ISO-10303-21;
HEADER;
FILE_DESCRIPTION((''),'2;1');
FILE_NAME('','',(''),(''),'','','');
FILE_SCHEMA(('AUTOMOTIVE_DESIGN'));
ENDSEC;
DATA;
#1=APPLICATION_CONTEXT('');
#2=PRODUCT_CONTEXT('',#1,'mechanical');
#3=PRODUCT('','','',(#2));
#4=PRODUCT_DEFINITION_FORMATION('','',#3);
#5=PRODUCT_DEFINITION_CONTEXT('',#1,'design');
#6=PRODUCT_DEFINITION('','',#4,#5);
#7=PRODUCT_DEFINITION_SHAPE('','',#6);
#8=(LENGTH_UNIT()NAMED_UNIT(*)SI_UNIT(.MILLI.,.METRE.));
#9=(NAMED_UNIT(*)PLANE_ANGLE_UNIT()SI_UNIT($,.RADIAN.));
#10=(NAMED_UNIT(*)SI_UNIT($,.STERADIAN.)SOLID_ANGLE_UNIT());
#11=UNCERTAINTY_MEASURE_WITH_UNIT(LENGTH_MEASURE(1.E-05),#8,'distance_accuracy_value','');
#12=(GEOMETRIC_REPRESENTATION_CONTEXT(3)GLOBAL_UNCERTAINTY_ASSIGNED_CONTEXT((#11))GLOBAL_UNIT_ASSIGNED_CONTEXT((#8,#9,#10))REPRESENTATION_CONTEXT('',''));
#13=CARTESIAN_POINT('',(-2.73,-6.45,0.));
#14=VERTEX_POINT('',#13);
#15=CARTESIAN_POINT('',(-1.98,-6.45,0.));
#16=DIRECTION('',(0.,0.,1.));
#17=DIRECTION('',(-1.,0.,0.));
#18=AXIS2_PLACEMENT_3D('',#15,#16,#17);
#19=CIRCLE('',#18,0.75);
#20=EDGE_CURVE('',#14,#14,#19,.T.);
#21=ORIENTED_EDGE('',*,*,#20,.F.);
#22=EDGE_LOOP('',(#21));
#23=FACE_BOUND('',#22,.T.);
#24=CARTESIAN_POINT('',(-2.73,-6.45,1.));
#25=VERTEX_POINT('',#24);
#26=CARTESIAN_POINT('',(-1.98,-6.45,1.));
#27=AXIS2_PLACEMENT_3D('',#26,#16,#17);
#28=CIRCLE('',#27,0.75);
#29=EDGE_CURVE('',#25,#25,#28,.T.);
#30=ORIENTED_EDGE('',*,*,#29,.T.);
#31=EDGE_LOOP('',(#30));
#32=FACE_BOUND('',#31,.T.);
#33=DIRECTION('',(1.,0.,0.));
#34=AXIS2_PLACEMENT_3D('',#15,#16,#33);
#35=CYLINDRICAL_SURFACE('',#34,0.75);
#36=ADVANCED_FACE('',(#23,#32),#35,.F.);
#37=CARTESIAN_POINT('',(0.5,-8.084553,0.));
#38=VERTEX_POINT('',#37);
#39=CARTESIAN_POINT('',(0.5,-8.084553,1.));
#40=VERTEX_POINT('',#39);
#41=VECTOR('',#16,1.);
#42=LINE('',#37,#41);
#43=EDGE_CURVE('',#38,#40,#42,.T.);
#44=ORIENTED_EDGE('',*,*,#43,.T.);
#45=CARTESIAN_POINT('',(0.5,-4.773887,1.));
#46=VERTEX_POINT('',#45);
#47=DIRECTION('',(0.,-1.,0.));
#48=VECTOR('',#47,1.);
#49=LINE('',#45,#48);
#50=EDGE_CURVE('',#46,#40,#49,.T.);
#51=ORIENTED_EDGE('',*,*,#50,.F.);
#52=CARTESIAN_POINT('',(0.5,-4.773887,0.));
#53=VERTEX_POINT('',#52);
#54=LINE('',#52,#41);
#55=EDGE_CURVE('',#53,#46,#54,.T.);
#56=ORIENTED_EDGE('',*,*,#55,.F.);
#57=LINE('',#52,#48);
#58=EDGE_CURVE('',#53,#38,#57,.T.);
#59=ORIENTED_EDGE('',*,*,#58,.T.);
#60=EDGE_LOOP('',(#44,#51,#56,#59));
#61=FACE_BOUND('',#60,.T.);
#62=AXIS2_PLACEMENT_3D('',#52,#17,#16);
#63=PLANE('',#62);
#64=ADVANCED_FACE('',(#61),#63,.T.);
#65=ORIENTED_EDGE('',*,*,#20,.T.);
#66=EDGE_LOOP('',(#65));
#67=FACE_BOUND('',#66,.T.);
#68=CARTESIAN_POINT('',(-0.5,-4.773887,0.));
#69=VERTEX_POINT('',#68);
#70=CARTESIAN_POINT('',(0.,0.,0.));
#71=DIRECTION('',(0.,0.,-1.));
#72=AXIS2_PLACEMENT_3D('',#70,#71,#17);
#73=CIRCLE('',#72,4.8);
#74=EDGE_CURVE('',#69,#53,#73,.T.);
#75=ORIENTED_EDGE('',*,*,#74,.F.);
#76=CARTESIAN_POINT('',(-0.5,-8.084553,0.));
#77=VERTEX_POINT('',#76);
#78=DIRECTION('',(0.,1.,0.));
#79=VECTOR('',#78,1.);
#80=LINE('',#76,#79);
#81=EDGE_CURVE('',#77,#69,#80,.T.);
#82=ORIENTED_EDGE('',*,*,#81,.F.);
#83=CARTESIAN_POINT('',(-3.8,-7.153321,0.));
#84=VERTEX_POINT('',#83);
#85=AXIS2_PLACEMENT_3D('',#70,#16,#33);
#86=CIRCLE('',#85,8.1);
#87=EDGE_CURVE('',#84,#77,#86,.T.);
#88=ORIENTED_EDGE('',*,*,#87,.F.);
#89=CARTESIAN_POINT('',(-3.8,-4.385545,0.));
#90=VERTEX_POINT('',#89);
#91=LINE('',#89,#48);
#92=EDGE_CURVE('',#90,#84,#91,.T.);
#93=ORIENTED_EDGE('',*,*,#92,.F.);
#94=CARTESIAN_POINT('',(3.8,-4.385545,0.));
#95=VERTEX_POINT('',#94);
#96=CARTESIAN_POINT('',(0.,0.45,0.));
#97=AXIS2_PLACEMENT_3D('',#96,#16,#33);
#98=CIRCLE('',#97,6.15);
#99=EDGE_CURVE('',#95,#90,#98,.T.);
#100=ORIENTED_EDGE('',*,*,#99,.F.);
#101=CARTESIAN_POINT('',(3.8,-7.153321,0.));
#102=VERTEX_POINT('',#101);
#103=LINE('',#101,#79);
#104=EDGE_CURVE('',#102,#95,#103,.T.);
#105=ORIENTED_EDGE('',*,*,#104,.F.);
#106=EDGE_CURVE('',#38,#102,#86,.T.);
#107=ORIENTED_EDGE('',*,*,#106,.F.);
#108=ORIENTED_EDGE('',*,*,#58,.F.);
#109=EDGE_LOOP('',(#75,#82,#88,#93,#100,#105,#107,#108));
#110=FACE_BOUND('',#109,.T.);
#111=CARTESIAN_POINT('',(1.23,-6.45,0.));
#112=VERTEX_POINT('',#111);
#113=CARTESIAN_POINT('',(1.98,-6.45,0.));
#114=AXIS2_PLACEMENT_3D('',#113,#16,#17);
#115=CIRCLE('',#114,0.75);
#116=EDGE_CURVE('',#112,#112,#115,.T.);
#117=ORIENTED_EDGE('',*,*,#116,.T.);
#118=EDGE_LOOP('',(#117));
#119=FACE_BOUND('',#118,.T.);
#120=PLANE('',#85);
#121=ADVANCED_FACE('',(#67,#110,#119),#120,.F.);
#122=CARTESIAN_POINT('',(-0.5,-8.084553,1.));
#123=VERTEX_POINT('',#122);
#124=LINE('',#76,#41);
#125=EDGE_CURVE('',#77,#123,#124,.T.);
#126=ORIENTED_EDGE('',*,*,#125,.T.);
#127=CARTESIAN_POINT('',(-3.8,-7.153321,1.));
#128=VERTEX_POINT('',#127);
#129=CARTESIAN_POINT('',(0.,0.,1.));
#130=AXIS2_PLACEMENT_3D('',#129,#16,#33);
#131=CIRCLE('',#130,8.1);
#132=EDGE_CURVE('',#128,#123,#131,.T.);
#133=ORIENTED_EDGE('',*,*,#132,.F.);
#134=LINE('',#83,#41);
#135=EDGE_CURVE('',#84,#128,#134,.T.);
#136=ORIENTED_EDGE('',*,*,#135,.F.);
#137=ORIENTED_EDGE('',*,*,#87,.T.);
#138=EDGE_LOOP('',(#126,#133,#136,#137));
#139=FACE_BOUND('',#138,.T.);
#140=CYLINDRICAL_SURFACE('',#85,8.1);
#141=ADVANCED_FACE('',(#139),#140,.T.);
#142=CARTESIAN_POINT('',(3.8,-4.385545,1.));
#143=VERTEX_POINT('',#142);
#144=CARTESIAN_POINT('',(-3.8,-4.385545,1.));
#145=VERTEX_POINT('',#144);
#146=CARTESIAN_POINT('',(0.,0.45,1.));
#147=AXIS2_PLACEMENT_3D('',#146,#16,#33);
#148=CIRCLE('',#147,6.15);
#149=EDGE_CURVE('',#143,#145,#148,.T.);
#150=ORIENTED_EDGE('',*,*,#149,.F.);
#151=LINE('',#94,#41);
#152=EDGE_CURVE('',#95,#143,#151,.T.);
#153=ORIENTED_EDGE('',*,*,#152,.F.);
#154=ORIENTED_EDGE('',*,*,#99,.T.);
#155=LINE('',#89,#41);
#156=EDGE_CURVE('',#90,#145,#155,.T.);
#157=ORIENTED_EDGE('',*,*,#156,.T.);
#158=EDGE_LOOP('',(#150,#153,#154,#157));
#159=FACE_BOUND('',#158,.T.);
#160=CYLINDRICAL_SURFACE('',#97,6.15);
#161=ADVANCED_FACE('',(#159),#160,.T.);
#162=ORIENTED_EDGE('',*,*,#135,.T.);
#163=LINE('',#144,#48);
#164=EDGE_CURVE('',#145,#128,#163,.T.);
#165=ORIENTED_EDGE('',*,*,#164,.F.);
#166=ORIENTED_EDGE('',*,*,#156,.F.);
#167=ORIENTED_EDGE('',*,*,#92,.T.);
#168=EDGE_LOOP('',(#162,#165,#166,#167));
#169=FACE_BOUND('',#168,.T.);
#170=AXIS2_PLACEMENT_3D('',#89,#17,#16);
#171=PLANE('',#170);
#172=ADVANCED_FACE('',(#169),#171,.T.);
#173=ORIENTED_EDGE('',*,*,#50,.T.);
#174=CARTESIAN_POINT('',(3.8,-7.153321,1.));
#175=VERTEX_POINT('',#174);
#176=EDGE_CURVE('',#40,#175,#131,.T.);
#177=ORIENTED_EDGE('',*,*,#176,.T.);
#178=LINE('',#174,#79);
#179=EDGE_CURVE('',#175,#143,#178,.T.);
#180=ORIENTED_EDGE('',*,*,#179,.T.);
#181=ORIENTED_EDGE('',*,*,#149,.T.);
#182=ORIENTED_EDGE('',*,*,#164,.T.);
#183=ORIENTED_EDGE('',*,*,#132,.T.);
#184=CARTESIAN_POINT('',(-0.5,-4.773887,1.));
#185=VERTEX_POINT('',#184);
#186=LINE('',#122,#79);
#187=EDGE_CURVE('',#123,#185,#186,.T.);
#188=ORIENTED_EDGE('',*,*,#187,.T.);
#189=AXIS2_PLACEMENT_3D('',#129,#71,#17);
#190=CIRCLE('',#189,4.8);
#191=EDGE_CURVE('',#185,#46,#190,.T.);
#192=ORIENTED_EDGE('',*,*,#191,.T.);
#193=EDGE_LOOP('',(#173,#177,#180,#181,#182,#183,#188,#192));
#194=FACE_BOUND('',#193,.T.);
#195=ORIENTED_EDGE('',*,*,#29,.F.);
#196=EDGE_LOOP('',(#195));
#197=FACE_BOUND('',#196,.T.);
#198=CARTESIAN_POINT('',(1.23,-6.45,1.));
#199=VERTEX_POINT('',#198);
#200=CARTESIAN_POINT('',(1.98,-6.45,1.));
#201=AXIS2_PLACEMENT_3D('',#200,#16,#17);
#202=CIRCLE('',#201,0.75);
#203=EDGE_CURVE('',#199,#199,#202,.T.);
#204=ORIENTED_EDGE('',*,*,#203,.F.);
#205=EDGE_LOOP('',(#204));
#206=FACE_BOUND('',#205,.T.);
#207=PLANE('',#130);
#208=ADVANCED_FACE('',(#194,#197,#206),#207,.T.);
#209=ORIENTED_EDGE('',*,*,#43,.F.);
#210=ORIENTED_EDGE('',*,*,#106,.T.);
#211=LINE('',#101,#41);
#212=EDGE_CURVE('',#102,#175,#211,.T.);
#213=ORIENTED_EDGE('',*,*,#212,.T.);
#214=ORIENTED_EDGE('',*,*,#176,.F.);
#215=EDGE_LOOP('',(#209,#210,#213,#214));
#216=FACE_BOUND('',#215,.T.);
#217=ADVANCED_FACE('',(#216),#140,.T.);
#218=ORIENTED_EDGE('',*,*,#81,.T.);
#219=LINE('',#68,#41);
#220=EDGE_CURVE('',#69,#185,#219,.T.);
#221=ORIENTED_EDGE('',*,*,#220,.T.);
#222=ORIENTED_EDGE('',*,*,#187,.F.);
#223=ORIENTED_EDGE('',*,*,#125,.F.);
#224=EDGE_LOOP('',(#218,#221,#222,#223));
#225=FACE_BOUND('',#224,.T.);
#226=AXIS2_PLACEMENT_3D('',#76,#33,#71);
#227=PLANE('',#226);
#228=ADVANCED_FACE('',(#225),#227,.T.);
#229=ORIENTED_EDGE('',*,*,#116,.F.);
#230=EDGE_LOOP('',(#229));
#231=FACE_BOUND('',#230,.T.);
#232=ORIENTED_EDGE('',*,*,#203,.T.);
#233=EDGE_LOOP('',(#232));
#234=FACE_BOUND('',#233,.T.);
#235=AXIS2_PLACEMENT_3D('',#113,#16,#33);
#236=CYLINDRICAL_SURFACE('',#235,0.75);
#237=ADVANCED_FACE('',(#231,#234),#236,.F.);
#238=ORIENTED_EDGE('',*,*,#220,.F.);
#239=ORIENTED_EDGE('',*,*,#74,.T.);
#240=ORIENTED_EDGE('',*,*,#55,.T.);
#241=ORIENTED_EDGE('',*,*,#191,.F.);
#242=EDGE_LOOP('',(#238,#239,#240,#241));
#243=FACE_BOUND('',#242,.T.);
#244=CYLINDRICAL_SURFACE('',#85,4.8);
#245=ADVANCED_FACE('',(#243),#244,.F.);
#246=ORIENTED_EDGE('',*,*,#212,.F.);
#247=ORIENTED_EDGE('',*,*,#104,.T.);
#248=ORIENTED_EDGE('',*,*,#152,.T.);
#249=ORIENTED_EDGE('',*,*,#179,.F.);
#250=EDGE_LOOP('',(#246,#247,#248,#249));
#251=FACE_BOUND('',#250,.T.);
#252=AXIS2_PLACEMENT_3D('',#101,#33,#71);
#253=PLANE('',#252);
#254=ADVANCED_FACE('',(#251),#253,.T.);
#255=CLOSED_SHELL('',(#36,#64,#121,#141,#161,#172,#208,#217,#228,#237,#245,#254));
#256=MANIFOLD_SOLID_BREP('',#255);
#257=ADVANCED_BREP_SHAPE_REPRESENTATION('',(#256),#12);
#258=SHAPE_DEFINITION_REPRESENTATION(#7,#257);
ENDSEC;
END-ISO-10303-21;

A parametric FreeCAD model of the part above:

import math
import FreeCAD as App
import Part
import Sketcher
Q = App.Units.Quantity

doc = App.newDocument("Part")
params = doc.addObject("Spreadsheet::Sheet", "Params")
for row, (alias, value) in enumerate([
    ("sketch1_diameter", "1.5 mm"),
    ("sketch1_radius", "4.8 mm"),
    ("sketch1_radius2", "8.1 mm"),
    ("sketch1_radius3", "6.15 mm"),
    ("pad1_length", "1 mm"),
], start=1):
    params.set(f"A{row}", alias)
    params.set(f"B{row}", "=" + value)
    params.setAlias(f"B{row}", alias)

body = doc.addObject("PartDesign::Body", "Body")

sketch1 = body.newObject("Sketcher::SketchObject", "Sketch")
sketch1.AttachmentSupport = (doc.getObject("XY_Plane"), [""])
sketch1.MapMode = "FlatFace"
sketch1.AttachmentOffset = App.Placement(App.Vector(0, 0, 1), App.Rotation())
sketch1.addGeometry([
    Part.LineSegment(App.Vector(-0.5, -8.1, 0), App.Vector(-0.5, -4.8, 0)),
    Part.ArcOfCircle(Part.Circle(App.Vector(0, 0, 0), App.Vector(0, 0, 1), 4.8), math.radians(-84), math.radians(264)),
    Part.LineSegment(App.Vector(0.5, -4.8, 0), App.Vector(0.5, -8.1, 0)),
    Part.ArcOfCircle(Part.Circle(App.Vector(0, 0, 0), App.Vector(0, 0, 1), 8.1), math.radians(-86), math.radians(-62)),
    Part.LineSegment(App.Vector(3.8, -7.2, 0), App.Vector(3.8, -4.4, 0)),
    Part.ArcOfCircle(Part.Circle(App.Vector(0, 0.5, 0), App.Vector(0, 0, 1), 6.2), math.radians(-52), math.radians(232)),
    Part.LineSegment(App.Vector(-3.8, -4.4, 0), App.Vector(-3.8, -7.2, 0)),
    Part.ArcOfCircle(Part.Circle(App.Vector(0, 0, 0), App.Vector(0, 0, 1), 8.1), math.radians(-118), math.radians(-94)),
    Part.Circle(App.Vector(-2, -6.5, 0), App.Vector(0, 0, 1), 0.8),
    Part.Circle(App.Vector(2, -6.5, 0), App.Vector(0, 0, 1), 0.8),
], False)
sketch1.addConstraint([
    Sketcher.Constraint("Coincident", 0, 2, 1, 2),
    Sketcher.Constraint("Coincident", 1, 1, 2, 1),
    Sketcher.Constraint("Coincident", 2, 2, 3, 1),
    Sketcher.Constraint("Coincident", 3, 2, 4, 1),
    Sketcher.Constraint("Coincident", 4, 2, 5, 1),
    Sketcher.Constraint("Coincident", 5, 2, 6, 1),
    Sketcher.Constraint("Coincident", 6, 2, 7, 1),
    Sketcher.Constraint("Coincident", 7, 2, 0, 1),
    Sketcher.Constraint("Vertical", 0),
    Sketcher.Constraint("Vertical", 2),
    Sketcher.Constraint("Vertical", 4),
    Sketcher.Constraint("Vertical", 6),
    Sketcher.Constraint("Coincident", 1, 3, -1, 1),
    Sketcher.Constraint("Coincident", 3, 3, -1, 1),
    Sketcher.Constraint("Coincident", 7, 3, -1, 1),
    Sketcher.Constraint("Equal", 3, 7),
    Sketcher.Constraint("Equal", 8, 9),
    Sketcher.Constraint("Symmetric", 8, 3, 9, 3, -2),
    Sketcher.Constraint("Symmetric", 4, 2, 5, 2, -2),
    Sketcher.Constraint("Horizontal", 0, 2, 1, 1),
    Sketcher.Constraint("Diameter", 8, Q("1.5 mm")),
    Sketcher.Constraint("Radius", 1, Q("4.8 mm")),
    Sketcher.Constraint("Radius", 3, Q("8.1 mm")),
    Sketcher.Constraint("Radius", 5, Q("6.15 mm")),
    Sketcher.Constraint("DistanceX", 0, 2, 1, 1, Q("1 mm")),
    Sketcher.Constraint("DistanceX", -1, 1, 3, 2, Q("3.8 mm")),
    Sketcher.Constraint("DistanceY", 8, 3, 5, 3, Q("6.9 mm")),
    Sketcher.Constraint("DistanceY", -1, 1, 5, 3, Q("0.45 mm")),
    Sketcher.Constraint("DistanceX", 8, 3, -1, 1, Q("1.98 mm")),
])
sketch1.setExpression("Constraints[20]", "Params.sketch1_diameter")
sketch1.setExpression("Constraints[21]", "Params.sketch1_radius")
sketch1.setExpression("Constraints[22]", "Params.sketch1_radius2")
sketch1.setExpression("Constraints[23]", "Params.sketch1_radius3")
pad1 = body.newObject("PartDesign::Pad", "Pad")
pad1.Profile = sketch1
pad1.setExpression("Length", "Params.pad1_length")
pad1.Reversed = True

doc.recompute()
